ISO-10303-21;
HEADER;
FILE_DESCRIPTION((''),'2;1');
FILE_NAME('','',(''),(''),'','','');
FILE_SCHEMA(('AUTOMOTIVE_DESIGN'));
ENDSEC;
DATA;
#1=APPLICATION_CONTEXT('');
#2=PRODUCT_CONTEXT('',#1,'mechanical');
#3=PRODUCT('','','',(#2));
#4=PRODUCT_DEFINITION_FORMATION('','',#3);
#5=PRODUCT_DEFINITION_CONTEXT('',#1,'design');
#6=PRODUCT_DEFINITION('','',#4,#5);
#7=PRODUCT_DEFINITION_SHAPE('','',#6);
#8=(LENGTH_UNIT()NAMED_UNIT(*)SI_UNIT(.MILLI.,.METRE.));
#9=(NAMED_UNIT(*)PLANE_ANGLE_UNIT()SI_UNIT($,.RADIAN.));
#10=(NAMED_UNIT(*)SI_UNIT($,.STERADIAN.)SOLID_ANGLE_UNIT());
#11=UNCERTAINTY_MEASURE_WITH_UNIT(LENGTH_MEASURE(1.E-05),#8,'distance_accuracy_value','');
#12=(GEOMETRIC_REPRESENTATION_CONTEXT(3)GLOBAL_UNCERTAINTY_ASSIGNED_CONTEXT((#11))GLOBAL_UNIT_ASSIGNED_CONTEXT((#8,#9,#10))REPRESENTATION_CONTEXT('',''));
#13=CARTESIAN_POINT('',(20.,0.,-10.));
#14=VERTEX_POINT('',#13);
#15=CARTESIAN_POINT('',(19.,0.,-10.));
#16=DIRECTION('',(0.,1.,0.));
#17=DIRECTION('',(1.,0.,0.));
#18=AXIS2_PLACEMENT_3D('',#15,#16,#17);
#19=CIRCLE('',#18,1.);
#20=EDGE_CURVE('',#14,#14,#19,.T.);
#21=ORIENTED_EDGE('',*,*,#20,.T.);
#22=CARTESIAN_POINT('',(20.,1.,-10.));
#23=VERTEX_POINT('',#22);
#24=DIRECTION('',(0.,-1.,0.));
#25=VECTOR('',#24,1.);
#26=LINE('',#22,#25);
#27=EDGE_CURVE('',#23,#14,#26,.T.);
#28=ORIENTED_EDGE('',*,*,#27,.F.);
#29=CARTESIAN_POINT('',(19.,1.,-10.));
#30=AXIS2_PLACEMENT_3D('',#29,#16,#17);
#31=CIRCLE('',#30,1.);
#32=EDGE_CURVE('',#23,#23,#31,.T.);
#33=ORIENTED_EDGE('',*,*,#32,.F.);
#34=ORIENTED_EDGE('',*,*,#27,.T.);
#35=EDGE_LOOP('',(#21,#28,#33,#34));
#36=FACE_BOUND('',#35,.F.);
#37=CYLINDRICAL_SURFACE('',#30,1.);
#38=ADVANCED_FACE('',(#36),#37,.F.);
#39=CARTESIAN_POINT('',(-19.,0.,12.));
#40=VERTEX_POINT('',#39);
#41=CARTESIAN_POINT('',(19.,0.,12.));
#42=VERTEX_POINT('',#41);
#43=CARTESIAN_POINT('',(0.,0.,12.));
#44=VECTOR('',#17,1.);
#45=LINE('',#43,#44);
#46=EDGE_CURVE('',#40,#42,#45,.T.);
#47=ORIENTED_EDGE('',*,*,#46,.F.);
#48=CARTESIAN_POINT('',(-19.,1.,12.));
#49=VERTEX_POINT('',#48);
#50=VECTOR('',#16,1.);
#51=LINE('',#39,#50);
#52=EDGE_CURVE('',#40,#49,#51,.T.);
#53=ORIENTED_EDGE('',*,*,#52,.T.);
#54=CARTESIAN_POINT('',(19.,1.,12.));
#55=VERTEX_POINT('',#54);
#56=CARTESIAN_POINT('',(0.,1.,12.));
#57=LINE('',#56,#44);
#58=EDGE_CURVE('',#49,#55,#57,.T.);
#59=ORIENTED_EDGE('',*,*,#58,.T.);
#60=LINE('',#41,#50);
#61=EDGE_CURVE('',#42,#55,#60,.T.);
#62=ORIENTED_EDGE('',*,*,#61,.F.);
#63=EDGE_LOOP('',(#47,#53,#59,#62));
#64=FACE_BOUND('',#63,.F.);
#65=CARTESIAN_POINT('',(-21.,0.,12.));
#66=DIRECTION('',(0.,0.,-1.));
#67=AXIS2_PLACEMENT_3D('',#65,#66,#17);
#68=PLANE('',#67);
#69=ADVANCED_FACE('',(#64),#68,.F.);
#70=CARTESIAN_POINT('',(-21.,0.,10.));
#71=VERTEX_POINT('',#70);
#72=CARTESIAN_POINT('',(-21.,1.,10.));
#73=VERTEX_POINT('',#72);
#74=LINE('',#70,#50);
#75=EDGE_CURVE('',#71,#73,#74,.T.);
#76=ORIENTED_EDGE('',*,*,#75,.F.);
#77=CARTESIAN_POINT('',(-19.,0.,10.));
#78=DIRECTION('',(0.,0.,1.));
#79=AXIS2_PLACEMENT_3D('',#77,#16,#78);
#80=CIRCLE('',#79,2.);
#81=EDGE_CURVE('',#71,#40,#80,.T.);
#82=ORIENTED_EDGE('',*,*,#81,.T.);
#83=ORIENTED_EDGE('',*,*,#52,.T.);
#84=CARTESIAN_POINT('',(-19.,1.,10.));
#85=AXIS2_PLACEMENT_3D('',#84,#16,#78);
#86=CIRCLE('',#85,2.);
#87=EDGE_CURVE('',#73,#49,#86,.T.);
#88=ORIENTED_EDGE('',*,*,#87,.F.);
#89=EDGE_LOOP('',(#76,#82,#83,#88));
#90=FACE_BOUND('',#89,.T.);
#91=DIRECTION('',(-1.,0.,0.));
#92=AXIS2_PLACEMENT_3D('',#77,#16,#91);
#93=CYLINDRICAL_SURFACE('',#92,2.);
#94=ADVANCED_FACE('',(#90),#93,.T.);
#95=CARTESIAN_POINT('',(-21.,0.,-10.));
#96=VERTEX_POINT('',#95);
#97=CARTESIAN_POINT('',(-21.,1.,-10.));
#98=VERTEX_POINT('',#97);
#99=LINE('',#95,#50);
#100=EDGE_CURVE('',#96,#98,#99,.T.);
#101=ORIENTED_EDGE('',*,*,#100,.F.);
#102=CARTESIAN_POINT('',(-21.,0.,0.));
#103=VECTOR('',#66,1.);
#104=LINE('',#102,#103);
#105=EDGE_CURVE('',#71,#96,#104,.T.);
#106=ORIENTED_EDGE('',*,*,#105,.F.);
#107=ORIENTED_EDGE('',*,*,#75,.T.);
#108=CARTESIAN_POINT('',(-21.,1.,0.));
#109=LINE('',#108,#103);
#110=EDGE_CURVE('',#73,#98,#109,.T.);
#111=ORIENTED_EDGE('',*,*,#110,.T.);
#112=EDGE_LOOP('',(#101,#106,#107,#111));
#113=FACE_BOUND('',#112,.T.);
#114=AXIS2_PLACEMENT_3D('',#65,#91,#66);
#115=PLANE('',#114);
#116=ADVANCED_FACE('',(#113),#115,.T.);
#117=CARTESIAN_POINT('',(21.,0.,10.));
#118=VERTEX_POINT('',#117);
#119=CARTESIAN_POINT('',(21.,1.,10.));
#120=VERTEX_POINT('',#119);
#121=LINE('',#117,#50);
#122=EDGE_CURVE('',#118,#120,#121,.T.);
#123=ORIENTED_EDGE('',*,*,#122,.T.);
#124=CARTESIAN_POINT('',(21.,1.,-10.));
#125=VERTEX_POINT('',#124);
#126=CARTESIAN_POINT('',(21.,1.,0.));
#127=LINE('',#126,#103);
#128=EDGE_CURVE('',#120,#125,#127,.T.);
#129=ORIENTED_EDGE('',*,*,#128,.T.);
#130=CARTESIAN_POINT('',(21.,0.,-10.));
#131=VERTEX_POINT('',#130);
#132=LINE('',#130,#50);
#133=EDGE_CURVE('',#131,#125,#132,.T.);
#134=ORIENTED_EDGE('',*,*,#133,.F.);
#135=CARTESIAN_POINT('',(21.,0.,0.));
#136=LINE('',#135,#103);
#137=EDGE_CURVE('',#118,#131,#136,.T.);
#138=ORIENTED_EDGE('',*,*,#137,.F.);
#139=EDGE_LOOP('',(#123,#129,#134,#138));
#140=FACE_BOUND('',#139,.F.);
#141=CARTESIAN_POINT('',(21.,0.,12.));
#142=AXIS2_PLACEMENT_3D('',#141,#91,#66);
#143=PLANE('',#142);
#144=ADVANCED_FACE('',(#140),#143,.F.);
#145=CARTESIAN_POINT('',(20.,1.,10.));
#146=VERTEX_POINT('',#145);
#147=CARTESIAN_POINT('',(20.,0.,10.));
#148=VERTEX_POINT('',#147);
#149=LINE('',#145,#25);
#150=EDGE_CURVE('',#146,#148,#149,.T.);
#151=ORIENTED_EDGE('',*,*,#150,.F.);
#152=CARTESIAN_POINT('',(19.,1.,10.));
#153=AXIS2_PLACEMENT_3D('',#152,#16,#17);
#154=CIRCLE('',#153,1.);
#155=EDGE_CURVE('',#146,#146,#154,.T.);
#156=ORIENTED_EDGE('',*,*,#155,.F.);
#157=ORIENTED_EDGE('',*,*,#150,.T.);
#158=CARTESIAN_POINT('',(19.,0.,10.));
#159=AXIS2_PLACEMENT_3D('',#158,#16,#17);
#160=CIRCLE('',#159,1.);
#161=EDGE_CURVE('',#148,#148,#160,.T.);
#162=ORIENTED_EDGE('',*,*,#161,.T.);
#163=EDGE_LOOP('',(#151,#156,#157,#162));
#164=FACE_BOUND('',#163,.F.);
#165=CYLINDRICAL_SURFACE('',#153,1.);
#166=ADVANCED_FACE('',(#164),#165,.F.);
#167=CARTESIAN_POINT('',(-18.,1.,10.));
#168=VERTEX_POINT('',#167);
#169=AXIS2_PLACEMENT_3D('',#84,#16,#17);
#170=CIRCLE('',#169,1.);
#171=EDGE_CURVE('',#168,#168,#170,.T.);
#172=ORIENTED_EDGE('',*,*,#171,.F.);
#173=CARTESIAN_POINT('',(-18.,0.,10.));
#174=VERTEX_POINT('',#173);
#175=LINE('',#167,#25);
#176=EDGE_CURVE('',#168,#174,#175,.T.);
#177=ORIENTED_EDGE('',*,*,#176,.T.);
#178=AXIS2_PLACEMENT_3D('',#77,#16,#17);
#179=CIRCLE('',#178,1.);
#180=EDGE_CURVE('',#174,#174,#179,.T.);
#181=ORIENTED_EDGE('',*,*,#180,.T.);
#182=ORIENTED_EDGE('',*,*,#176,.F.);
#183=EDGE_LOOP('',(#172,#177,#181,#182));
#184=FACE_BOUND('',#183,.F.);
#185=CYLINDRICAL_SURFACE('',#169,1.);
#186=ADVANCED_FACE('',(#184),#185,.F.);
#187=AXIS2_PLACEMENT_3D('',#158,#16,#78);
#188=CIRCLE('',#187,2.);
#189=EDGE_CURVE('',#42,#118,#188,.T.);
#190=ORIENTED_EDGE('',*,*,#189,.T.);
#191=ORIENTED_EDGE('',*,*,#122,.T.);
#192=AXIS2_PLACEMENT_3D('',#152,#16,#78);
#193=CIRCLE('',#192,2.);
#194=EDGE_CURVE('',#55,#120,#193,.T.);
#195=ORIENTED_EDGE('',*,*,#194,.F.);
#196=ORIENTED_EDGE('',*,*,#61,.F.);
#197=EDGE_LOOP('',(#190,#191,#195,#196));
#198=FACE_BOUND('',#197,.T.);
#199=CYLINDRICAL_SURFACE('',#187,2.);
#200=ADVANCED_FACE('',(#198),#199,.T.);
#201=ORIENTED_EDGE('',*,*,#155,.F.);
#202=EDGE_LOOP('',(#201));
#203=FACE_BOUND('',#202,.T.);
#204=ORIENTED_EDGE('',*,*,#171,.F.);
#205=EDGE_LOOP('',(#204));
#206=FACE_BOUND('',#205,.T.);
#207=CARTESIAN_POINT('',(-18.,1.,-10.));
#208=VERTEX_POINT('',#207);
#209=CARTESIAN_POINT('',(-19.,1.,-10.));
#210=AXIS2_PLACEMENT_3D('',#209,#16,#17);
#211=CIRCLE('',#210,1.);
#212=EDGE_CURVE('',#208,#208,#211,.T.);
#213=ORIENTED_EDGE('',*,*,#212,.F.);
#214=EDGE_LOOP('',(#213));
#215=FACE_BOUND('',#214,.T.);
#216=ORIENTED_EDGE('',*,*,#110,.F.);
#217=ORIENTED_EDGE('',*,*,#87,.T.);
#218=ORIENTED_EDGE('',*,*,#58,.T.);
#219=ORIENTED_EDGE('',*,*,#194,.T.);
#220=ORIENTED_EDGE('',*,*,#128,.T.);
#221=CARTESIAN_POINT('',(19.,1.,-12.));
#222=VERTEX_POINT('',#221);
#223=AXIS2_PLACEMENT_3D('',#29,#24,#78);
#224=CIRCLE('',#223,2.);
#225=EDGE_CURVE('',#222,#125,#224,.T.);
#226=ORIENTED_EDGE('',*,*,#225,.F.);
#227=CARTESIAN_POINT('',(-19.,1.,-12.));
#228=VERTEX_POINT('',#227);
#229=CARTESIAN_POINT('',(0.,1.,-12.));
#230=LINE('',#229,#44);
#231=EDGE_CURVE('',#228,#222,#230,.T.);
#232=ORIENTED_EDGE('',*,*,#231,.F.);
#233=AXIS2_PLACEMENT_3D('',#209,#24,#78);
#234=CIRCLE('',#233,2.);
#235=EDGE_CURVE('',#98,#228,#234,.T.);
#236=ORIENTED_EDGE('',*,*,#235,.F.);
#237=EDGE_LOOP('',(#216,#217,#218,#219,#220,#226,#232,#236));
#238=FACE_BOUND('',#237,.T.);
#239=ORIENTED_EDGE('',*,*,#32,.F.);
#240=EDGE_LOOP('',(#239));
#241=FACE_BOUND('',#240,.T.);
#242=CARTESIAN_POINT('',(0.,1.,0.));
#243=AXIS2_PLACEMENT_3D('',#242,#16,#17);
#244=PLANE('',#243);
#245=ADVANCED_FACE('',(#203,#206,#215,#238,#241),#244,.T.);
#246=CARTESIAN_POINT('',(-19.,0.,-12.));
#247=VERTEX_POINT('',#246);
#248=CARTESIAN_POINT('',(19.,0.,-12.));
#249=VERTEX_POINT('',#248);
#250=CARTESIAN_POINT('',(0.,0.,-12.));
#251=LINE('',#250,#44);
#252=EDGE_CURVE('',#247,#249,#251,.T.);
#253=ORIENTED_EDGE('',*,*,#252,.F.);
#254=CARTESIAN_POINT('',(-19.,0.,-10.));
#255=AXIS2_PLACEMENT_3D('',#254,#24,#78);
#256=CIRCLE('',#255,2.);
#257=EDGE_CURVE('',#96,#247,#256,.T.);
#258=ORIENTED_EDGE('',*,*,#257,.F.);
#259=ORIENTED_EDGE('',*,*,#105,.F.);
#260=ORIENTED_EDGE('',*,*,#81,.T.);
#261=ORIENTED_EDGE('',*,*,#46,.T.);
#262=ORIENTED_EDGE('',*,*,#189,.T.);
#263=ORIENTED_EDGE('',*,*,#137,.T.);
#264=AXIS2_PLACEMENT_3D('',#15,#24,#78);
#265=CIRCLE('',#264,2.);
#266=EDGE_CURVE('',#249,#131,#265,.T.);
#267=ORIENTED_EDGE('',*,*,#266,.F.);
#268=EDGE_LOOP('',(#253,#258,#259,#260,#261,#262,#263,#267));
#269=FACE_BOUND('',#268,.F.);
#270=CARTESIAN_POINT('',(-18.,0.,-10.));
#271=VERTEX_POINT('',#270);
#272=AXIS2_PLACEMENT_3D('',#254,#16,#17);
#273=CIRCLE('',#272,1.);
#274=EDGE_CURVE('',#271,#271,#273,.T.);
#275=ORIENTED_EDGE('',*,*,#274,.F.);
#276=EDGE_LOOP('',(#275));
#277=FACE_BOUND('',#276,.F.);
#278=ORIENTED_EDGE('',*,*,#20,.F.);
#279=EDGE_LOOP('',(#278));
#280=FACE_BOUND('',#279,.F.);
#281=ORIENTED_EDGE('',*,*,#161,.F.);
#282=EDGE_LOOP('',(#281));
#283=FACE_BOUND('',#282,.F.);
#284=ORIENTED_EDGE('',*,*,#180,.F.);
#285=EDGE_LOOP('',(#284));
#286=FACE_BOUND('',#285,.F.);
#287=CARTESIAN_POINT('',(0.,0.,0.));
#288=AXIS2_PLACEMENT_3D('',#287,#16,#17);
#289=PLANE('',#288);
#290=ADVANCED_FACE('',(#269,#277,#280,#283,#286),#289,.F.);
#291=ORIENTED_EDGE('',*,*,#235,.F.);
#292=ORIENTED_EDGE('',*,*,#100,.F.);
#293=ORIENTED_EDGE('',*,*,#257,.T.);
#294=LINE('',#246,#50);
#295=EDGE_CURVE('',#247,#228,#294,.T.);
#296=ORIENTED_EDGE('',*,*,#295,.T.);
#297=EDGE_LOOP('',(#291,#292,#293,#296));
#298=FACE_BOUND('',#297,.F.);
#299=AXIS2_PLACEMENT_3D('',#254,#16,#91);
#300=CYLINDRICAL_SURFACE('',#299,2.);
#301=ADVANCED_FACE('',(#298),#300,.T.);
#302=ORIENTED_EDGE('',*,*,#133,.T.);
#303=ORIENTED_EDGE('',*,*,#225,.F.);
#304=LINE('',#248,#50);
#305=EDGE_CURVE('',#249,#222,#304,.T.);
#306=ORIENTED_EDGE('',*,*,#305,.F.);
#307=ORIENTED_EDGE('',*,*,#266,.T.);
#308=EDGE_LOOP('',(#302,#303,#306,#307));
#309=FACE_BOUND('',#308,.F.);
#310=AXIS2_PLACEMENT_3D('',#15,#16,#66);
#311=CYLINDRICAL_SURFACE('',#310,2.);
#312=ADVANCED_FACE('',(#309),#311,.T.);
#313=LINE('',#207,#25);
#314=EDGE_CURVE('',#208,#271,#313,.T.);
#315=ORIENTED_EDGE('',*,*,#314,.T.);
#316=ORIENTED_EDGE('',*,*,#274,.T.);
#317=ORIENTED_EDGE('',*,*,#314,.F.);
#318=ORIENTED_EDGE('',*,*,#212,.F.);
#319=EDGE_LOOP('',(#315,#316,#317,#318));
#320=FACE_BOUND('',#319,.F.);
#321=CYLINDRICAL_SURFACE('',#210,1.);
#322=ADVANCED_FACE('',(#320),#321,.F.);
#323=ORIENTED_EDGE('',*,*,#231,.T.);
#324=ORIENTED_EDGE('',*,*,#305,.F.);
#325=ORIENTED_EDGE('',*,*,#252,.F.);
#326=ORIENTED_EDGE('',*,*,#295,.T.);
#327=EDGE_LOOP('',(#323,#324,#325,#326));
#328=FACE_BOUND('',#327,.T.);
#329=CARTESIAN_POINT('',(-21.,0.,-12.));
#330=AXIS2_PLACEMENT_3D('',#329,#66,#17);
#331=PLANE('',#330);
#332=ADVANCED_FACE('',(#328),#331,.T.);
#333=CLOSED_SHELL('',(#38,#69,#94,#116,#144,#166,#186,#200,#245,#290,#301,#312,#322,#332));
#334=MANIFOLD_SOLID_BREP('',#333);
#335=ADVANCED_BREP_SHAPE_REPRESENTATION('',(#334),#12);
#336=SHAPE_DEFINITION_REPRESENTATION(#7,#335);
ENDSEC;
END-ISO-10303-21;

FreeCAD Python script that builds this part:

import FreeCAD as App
import Part
import Sketcher

V = App.Vector
Q = App.Units.Quantity


def edges_at(feature, points):
    """Names of the edges that pass closest to the given points."""
    edges = feature.Shape.Edges
    near = lambda p: min(range(len(edges)), key=lambda i: edges[i].distToShape(Part.Vertex(*p))[0])
    return sorted({f"Edge{near(p) + 1}" for p in points})

doc = App.newDocument("Part")
params = doc.addObject("Spreadsheet::Sheet", "Params")
for row, (alias, value) in enumerate([
    ("sketch1_width", "42 mm"),
    ("sketch1_height", "24 mm"),
    ("pad1_length", "1 mm"),
    ("sketch2_diameter", "2 mm"),
    ("fillet_radius", "2 mm"),
], start=1):
    params.set(f"A{row}", alias)
    params.set(f"B{row}", "=" + value)
    params.setAlias(f"B{row}", alias)

body = doc.addObject("PartDesign::Body", "Body")

sketch1 = body.newObject("Sketcher::SketchObject", "Sketch")
sketch1.AttachmentSupport = (doc.getObject("XZ_Plane"), [""])
sketch1.MapMode = "FlatFace"
sketch1.addGeometry([
    Part.LineSegment(V(-21, -12, 0), V(-21, 12, 0)),
    Part.LineSegment(V(-21, 12, 0), V(21, 12, 0)),
    Part.LineSegment(V(21, 12, 0), V(21, -12, 0)),
    Part.LineSegment(V(21, -12, 0), V(-21, -12, 0)),
], False)
sketch1.addConstraint([
    Sketcher.Constraint("Coincident", 0, 2, 1, 1),
    Sketcher.Constraint("Coincident", 1, 2, 2, 1),
    Sketcher.Constraint("Coincident", 2, 2, 3, 1),
    Sketcher.Constraint("Coincident", 3, 2, 0, 1),
    Sketcher.Constraint("Vertical", 0),
    Sketcher.Constraint("Horizontal", 1),
    Sketcher.Constraint("Vertical", 2),
    Sketcher.Constraint("Horizontal", 3),
    Sketcher.Constraint("Symmetric", 0, 2, 2, 2, -1, 1),
    Sketcher.Constraint("DistanceX", 1, 1, 1, 2, Q("42 mm")),
    Sketcher.Constraint("DistanceY", 0, 1, 0, 2, Q("24 mm")),
])
sketch1.setExpression("Constraints[9]", "Params.sketch1_width")
sketch1.setExpression("Constraints[10]", "Params.sketch1_height")
pad1 = body.newObject("PartDesign::Pad", "Pad")
pad1.Profile = sketch1
pad1.setExpression("Length", "Params.pad1_length")
pad1.Reversed = True

sketch2 = body.newObject("Sketcher::SketchObject", "Sketch001")
sketch2.AttachmentSupport = (doc.getObject("XZ_Plane"), [""])
sketch2.MapMode = "FlatFace"
sketch2.AttachmentOffset = App.Placement(V(0, 0, -1), App.Rotation())
sketch2.addGeometry([
    Part.Circle(V(-19, -10, 0), V(0, 0, 1), 1),
    Part.Circle(V(-19, 10, 0), V(0, 0, 1), 1),
    Part.Circle(V(19, 10, 0), V(0, 0, 1), 1),
    Part.Circle(V(19, -10, 0), V(0, 0, 1), 1),
], False)
sketch2.addConstraint([
    Sketcher.Constraint("Equal", 0, 1),
    Sketcher.Constraint("Equal", 1, 2),
    Sketcher.Constraint("Equal", 2, 3),
    Sketcher.Constraint("Symmetric", 0, 3, 2, 3, -1, 1),
    Sketcher.Constraint("Symmetric", 1, 3, 3, 3, -1, 1),
    Sketcher.Constraint("Symmetric", 1, 3, 2, 3, -2),
    Sketcher.Constraint("Diameter", 0, Q("2 mm")),
    Sketcher.Constraint("DistanceX", 0, 3, -1, 1, Q("19 mm")),
    Sketcher.Constraint("DistanceY", 0, 3, -1, 1, Q("10 mm")),
])
sketch2.setExpression("Constraints[6]", "Params.sketch2_diameter")
pocket1 = body.newObject("PartDesign::Pocket", "Pocket")
pocket1.Profile = sketch2
pocket1.Type = "ThroughAll"
pocket1.Reversed = True
doc.recompute()

fillet = body.newObject("PartDesign::Fillet", "Fillet")
fillet.Base = (pocket1, edges_at(pocket1, [
    (21, 0.5, 12),
    (-21, 0.5, 12),
    (-21, 0.5, -12),
    (21, 0.5, -12),
]))
fillet.setExpression("Radius", "Params.fillet_radius")

doc.recompute()
